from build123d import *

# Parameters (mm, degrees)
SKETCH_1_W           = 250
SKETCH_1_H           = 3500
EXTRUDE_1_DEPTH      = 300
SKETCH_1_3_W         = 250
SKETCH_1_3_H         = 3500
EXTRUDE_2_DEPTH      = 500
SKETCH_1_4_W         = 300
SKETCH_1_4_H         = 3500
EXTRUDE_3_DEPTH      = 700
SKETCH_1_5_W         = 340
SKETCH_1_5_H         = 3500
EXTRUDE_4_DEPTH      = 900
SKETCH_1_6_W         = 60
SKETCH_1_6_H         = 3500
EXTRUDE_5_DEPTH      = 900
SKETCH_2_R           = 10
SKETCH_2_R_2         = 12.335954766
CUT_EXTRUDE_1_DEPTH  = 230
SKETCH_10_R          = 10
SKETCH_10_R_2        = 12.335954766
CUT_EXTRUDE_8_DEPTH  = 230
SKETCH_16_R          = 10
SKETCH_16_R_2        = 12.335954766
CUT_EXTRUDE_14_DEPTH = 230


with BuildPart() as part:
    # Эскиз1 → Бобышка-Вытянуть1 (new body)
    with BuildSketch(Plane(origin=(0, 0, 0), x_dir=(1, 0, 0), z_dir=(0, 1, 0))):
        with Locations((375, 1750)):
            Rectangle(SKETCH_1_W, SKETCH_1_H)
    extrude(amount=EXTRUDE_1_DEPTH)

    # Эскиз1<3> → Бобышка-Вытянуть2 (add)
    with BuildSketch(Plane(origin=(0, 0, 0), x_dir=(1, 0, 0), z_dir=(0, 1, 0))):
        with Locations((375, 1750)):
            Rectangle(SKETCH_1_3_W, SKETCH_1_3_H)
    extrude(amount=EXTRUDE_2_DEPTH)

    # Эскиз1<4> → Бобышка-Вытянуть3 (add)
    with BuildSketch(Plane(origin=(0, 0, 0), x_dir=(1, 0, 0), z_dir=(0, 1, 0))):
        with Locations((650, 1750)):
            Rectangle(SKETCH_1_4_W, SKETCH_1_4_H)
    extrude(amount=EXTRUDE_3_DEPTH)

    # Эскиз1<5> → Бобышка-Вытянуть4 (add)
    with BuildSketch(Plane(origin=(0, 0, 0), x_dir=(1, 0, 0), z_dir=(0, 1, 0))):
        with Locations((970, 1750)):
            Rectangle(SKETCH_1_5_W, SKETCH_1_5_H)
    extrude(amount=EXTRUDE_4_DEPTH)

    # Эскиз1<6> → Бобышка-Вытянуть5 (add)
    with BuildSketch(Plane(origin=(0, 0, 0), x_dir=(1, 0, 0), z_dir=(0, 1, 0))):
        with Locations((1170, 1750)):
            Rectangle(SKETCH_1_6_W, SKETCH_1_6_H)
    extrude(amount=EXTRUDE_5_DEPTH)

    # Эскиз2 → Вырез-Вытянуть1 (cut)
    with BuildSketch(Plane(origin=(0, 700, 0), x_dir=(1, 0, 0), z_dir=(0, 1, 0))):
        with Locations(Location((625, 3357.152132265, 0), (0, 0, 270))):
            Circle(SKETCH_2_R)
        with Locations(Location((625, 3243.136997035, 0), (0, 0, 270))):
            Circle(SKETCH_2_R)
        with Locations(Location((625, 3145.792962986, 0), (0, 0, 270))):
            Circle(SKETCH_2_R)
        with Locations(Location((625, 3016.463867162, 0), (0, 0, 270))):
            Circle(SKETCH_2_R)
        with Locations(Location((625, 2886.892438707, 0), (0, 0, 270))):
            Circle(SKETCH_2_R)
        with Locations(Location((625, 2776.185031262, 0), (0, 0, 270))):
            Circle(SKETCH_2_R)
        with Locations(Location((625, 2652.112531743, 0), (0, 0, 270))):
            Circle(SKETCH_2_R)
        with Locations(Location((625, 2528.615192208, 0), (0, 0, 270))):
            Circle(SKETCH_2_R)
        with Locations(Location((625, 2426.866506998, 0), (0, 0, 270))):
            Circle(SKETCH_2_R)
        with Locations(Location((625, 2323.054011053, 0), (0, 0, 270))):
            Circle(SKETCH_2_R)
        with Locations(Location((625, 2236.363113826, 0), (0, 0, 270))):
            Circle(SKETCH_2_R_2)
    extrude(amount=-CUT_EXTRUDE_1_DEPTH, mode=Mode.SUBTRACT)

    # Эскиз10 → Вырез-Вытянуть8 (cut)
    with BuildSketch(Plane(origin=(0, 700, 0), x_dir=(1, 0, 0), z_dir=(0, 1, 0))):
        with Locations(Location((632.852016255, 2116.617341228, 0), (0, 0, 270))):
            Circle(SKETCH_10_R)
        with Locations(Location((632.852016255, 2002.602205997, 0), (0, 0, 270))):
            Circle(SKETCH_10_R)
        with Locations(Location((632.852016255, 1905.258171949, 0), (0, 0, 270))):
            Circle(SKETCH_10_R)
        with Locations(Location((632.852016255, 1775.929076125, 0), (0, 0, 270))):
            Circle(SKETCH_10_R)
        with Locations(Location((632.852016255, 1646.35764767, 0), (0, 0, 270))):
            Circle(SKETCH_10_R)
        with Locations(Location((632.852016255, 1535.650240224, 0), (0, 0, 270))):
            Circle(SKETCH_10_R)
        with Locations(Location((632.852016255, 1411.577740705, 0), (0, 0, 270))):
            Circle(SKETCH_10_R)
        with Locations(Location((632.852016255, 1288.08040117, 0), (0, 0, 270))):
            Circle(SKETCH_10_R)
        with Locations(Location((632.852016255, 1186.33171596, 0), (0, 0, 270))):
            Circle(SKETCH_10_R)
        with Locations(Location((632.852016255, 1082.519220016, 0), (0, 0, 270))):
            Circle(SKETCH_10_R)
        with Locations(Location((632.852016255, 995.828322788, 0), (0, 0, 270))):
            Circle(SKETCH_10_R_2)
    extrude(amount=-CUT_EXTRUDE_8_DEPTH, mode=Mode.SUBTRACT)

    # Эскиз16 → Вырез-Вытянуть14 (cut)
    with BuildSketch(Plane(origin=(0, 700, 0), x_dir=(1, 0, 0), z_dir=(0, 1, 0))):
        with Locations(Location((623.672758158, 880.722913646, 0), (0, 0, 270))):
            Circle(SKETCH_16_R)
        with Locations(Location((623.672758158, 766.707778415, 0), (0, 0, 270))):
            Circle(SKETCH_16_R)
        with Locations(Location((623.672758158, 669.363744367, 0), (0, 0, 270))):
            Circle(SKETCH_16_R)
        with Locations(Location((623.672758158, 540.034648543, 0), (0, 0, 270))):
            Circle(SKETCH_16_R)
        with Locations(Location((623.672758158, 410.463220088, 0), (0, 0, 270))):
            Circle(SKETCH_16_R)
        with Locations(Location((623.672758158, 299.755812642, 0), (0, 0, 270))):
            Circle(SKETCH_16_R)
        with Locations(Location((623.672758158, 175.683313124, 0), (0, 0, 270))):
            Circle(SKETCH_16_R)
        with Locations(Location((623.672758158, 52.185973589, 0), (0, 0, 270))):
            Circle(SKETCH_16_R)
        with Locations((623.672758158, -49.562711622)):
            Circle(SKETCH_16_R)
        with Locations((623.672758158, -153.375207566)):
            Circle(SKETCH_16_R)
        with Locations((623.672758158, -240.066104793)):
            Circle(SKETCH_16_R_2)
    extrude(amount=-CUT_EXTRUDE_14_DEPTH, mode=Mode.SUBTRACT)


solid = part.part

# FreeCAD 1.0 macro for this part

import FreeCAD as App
import Part
import Sketcher
Q = App.Units.Quantity

doc = App.newDocument("Part")
body = doc.addObject("PartDesign::Body", "Body")

sketch1 = body.newObject("Sketcher::SketchObject", "Sketch")
sketch1.AttachmentSupport = (doc.getObject("XZ_Plane"), [""])
sketch1.MapMode = "FlatFace"
sketch1.addGeometry([
    Part.LineSegment(App.Vector(250, -3500, 0), App.Vector(250, 0, 0)),
    Part.LineSegment(App.Vector(250, 0, 0), App.Vector(500, 0, 0)),
    Part.LineSegment(App.Vector(500, 0, 0), App.Vector(500, -3500, 0)),
    Part.LineSegment(App.Vector(500, -3500, 0), App.Vector(250, -3500, 0)),
], False)
sketch1.addConstraint([
    Sketcher.Constraint("Coincident", 0, 2, 1, 1),
    Sketcher.Constraint("Coincident", 1, 2, 2, 1),
    Sketcher.Constraint("Coincident", 2, 2, 3, 1),
    Sketcher.Constraint("Coincident", 3, 2, 0, 1),
    Sketcher.Constraint("Vertical", 0),
    Sketcher.Constraint("Horizontal", 1),
    Sketcher.Constraint("Vertical", 2),
    Sketcher.Constraint("Horizontal", 3),
    Sketcher.Constraint("PointOnObject", 0, 2, -1),
    Sketcher.Constraint("DistanceX", 1, 1, 1, 2, Q("250 mm")),
    Sketcher.Constraint("DistanceY", 0, 1, 0, 2, Q("3500 mm")),
    Sketcher.Constraint("DistanceX", -1, 1, 0, 2, Q("250 mm")),
])
pad1 = body.newObject("PartDesign::Pad", "Pad")
pad1.Profile = sketch1
pad1.Length = 300
pad1.Reversed = True

sketch2 = body.newObject("Sketcher::SketchObject", "Sketch001")
sketch2.AttachmentSupport = (doc.getObject("XZ_Plane"), [""])
sketch2.MapMode = "FlatFace"
sketch2.addGeometry([
    Part.LineSegment(App.Vector(250, -3500, 0), App.Vector(250, 0, 0)),
    Part.LineSegment(App.Vector(250, 0, 0), App.Vector(500, 0, 0)),
    Part.LineSegment(App.Vector(500, 0, 0), App.Vector(500, -3500, 0)),
    Part.LineSegment(App.Vector(500, -3500, 0), App.Vector(250, -3500, 0)),
], False)
sketch2.addConstraint([
    Sketcher.Constraint("Coincident", 0, 2, 1, 1),
    Sketcher.Constraint("Coincident", 1, 2, 2, 1),
    Sketcher.Constraint("Coincident", 2, 2, 3, 1),
    Sketcher.Constraint("Coincident", 3, 2, 0, 1),
    Sketcher.Constraint("Vertical", 0),
    Sketcher.Constraint("Horizontal", 1),
    Sketcher.Constraint("Vertical", 2),
    Sketcher.Constraint("Horizontal", 3),
    Sketcher.Constraint("PointOnObject", 0, 2, -1),
    Sketcher.Constraint("DistanceX", 1, 1, 1, 2, Q("250 mm")),
    Sketcher.Constraint("DistanceY", 0, 1, 0, 2, Q("3500 mm")),
    Sketcher.Constraint("DistanceX", -1, 1, 0, 2, Q("250 mm")),
])
pad2 = body.newObject("PartDesign::Pad", "Pad001")
pad2.Profile = sketch2
pad2.Length = 500
pad2.Reversed = True

sketch3 = body.newObject("Sketcher::SketchObject", "Sketch002")
sketch3.AttachmentSupport = (doc.getObject("XZ_Plane"), [""])
sketch3.MapMode = "FlatFace"
sketch3.addGeometry([
    Part.LineSegment(App.Vector(500, -3500, 0), App.Vector(500, 0, 0)),
    Part.LineSegment(App.Vector(500, 0, 0), App.Vector(800, 0, 0)),
    Part.LineSegment(App.Vector(800, 0, 0), App.Vector(800, -3500, 0)),
    Part.LineSegment(App.Vector(800, -3500, 0), App.Vector(500, -3500, 0)),
], False)
sketch3.addConstraint([
    Sketcher.Constraint("Coincident", 0, 2, 1, 1),
    Sketcher.Constraint("Coincident", 1, 2, 2, 1),
    Sketcher.Constraint("Coincident", 2, 2, 3, 1),
    Sketcher.Constraint("Coincident", 3, 2, 0, 1),
    Sketcher.Constraint("Vertical", 0),
    Sketcher.Constraint("Horizontal", 1),
    Sketcher.Constraint("Vertical", 2),
    Sketcher.Constraint("Horizontal", 3),
    Sketcher.Constraint("PointOnObject", 0, 2, -1),
    Sketcher.Constraint("DistanceX", 1, 1, 1, 2, Q("300 mm")),
    Sketcher.Constraint("DistanceY", 0, 1, 0, 2, Q("3500 mm")),
    Sketcher.Constraint("DistanceX", -1, 1, 0, 2, Q("500 mm")),
])
pad3 = body.newObject("PartDesign::Pad", "Pad002")
pad3.Profile = sketch3
pad3.Length = 700
pad3.Reversed = True

sketch4 = body.newObject("Sketcher::SketchObject", "Sketch003")
sketch4.AttachmentSupport = (doc.getObject("XZ_Plane"), [""])
sketch4.MapMode = "FlatFace"
sketch4.addGeometry([
    Part.LineSegment(App.Vector(800, -3500, 0), App.Vector(800, 0, 0)),
    Part.LineSegment(App.Vector(800, 0, 0), App.Vector(1140, 0, 0)),
    Part.LineSegment(App.Vector(1140, 0, 0), App.Vector(1140, -3500, 0)),
    Part.LineSegment(App.Vector(1140, -3500, 0), App.Vector(800, -3500, 0)),
], False)
sketch4.addConstraint([
    Sketcher.Constraint("Coincident", 0, 2, 1, 1),
    Sketcher.Constraint("Coincident", 1, 2, 2, 1),
    Sketcher.Constraint("Coincident", 2, 2, 3, 1),
    Sketcher.Constraint("Coincident", 3, 2, 0, 1),
    Sketcher.Constraint("Vertical", 0),
    Sketcher.Constraint("Horizontal", 1),
    Sketcher.Constraint("Vertical", 2),
    Sketcher.Constraint("Horizontal", 3),
    Sketcher.Constraint("PointOnObject", 0, 2, -1),
    Sketcher.Constraint("DistanceX", 1, 1, 1, 2, Q("340 mm")),
    Sketcher.Constraint("DistanceY", 0, 1, 0, 2, Q("3500 mm")),
    Sketcher.Constraint("DistanceX", -1, 1, 0, 2, Q("800 mm")),
])
pad4 = body.newObject("PartDesign::Pad", "Pad003")
pad4.Profile = sketch4
pad4.Length = 900
pad4.Reversed = True

sketch5 = body.newObject("Sketcher::SketchObject", "Sketch004")
sketch5.AttachmentSupport = (doc.getObject("XZ_Plane"), [""])
sketch5.MapMode = "FlatFace"
sketch5.addGeometry([
    Part.LineSegment(App.Vector(1140, -3500, 0), App.Vector(1140, 0, 0)),
    Part.LineSegment(App.Vector(1140, 0, 0), App.Vector(1200, 0, 0)),
    Part.LineSegment(App.Vector(1200, 0, 0), App.Vector(1200, -3500, 0)),
    Part.LineSegment(App.Vector(1200, -3500, 0), App.Vector(1140, -3500, 0)),
], False)
sketch5.addConstraint([
    Sketcher.Constraint("Coincident", 0, 2, 1, 1),
    Sketcher.Constraint("Coincident", 1, 2, 2, 1),
    Sketcher.Constraint("Coincident", 2, 2, 3, 1),
    Sketcher.Constraint("Coincident", 3, 2, 0, 1),
    Sketcher.Constraint("Vertical", 0),
    Sketcher.Constraint("Horizontal", 1),
    Sketcher.Constraint("Vertical", 2),
    Sketcher.Constraint("Horizontal", 3),
    Sketcher.Constraint("PointOnObject", 0, 2, -1),
    Sketcher.Constraint("DistanceX", 1, 1, 1, 2, Q("60 mm")),
    Sketcher.Constraint("DistanceY", 0, 1, 0, 2, Q("3500 mm")),
    Sketcher.Constraint("DistanceX", -1, 1, 0, 2, Q("1140 mm")),
])
pad5 = body.newObject("PartDesign::Pad", "Pad004")
pad5.Profile = sketch5
pad5.Length = 900
pad5.Reversed = True

sketch6 = body.newObject("Sketcher::SketchObject", "Sketch005")
sketch6.AttachmentSupport = (doc.getObject("XZ_Plane"), [""])
sketch6.MapMode = "FlatFace"
sketch6.AttachmentOffset = App.Placement(App.Vector(0, 0, -700), App.Rotation())
sketch6.addGeometry([
    Part.Circle(App.Vector(625, -3357.152132, 0), App.Vector(0, 0, 1), 10),
    Part.Circle(App.Vector(625, -3243.136997, 0), App.Vector(0, 0, 1), 10),
    Part.Circle(App.Vector(625, -3145.792963, 0), App.Vector(0, 0, 1), 10),
    Part.Circle(App.Vector(625, -3016.463867, 0), App.Vector(0, 0, 1), 10),
    Part.Circle(App.Vector(625, -2886.892439, 0), App.Vector(0, 0, 1), 10),
    Part.Circle(App.Vector(625, -2776.185031, 0), App.Vector(0, 0, 1), 10),
    Part.Circle(App.Vector(625, -2652.112532, 0), App.Vector(0, 0, 1), 10),
    Part.Circle(App.Vector(625, -2528.615192, 0), App.Vector(0, 0, 1), 10),
    Part.Circle(App.Vector(625, -2426.866507, 0), App.Vector(0, 0, 1), 10),
    Part.Circle(App.Vector(625, -2323.054011, 0), App.Vector(0, 0, 1), 10),
    Part.Circle(App.Vector(625, -2236.363114, 0), App.Vector(0, 0, 1), 12.335955),
], False)
sketch6.addConstraint([
    Sketcher.Constraint("Equal", 0, 1),
    Sketcher.Constraint("Equal", 1, 2),
    Sketcher.Constraint("Equal", 2, 3),
    Sketcher.Constraint("Equal", 3, 4),
    Sketcher.Constraint("Equal", 4, 5),
    Sketcher.Constraint("Equal", 5, 6),
    Sketcher.Constraint("Equal", 6, 7),
    Sketcher.Constraint("Equal", 7, 8),
    Sketcher.Constraint("Equal", 8, 9),
    Sketcher.Constraint("Vertical", 0, 3, 1, 3),
    Sketcher.Constraint("Vertical", 1, 3, 2, 3),
    Sketcher.Constraint("Vertical", 2, 3, 3, 3),
    Sketcher.Constraint("Vertical", 3, 3, 4, 3),
    Sketcher.Constraint("Vertical", 4, 3, 5, 3),
    Sketcher.Constraint("Vertical", 5, 3, 6, 3),
    Sketcher.Constraint("Vertical", 6, 3, 7, 3),
    Sketcher.Constraint("Vertical", 7, 3, 8, 3),
    Sketcher.Constraint("Vertical", 8, 3, 9, 3),
    Sketcher.Constraint("Vertical", 9, 3, 10, 3),
    Sketcher.Constraint("Diameter", 0, Q("20 mm")),
    Sketcher.Constraint("DistanceX", -1, 1, 0, 3, Q("625 mm")),
    Sketcher.Constraint("Diameter", 10, Q("24.67191 mm")),
    Sketcher.Constraint("DistanceY", 0, 3, 5, 3, Q("580.967101 mm")),
    Sketcher.Constraint("DistanceY", 5, 3, 6, 3, Q("124.0725 mm")),
    Sketcher.Constraint("DistanceY", 4, 3, -1, 1, Q("2886.892439 mm")),
    Sketcher.Constraint("DistanceY", 5, 3, -1, 1, Q("2776.185031 mm")),
    Sketcher.Constraint("DistanceY", 9, 3, -1, 1, Q("2323.054011 mm")),
    Sketcher.Constraint("DistanceY", 0, 3, 2, 3, Q("211.359169 mm")),
    Sketcher.Constraint("DistanceY", 1, 3, 3, 3, Q("226.67313 mm")),
    Sketcher.Constraint("DistanceY", 3, 3, 4, 3, Q("129.571428 mm")),
    Sketcher.Constraint("DistanceY", 6, 3, 7, 3, Q("123.49734 mm")),
    Sketcher.Constraint("DistanceY", 4, 3, 8, 3, Q("460.025932 mm")),
    Sketcher.Constraint("DistanceY", 7, 3, 10, 3, Q("292.252078 mm")),
])
pocket1 = body.newObject("PartDesign::Pocket", "Pocket")
pocket1.Profile = sketch6
pocket1.Length = 230
pocket1.Reversed = True

sketch7 = body.newObject("Sketcher::SketchObject", "Sketch006")
sketch7.AttachmentSupport = (doc.getObject("XZ_Plane"), [""])
sketch7.MapMode = "FlatFace"
sketch7.AttachmentOffset = App.Placement(App.Vector(0, 0, -700), App.Rotation())
sketch7.addGeometry([
    Part.Circle(App.Vector(632.852016, -2116.617341, 0), App.Vector(0, 0, 1), 10),
    Part.Circle(App.Vector(632.852016, -2002.602206, 0), App.Vector(0, 0, 1), 10),
    Part.Circle(App.Vector(632.852016, -1905.258172, 0), App.Vector(0, 0, 1), 10),
    Part.Circle(App.Vector(632.852016, -1775.929076, 0), App.Vector(0, 0, 1), 10),
    Part.Circle(App.Vector(632.852016, -1646.357648, 0), App.Vector(0, 0, 1), 10),
    Part.Circle(App.Vector(632.852016, -1535.65024, 0), App.Vector(0, 0, 1), 10),
    Part.Circle(App.Vector(632.852016, -1411.577741, 0), App.Vector(0, 0, 1), 10),
    Part.Circle(App.Vector(632.852016, -1288.080401, 0), App.Vector(0, 0, 1), 10),
    Part.Circle(App.Vector(632.852016, -1186.331716, 0), App.Vector(0, 0, 1), 10),
    Part.Circle(App.Vector(632.852016, -1082.51922, 0), App.Vector(0, 0, 1), 10),
    Part.Circle(App.Vector(632.852016, -995.828323, 0), App.Vector(0, 0, 1), 12.335955),
], False)
sketch7.addConstraint([
    Sketcher.Constraint("Equal", 0, 1),
    Sketcher.Constraint("Equal", 1, 2),
    Sketcher.Constraint("Equal", 2, 3),
    Sketcher.Constraint("Equal", 3, 4),
    Sketcher.Constraint("Equal", 4, 5),
    Sketcher.Constraint("Equal", 5, 6),
    Sketcher.Constraint("Equal", 6, 7),
    Sketcher.Constraint("Equal", 7, 8),
    Sketcher.Constraint("Equal", 8, 9),
    Sketcher.Constraint("Vertical", 0, 3, 1, 3),
    Sketcher.Constraint("Vertical", 1, 3, 2, 3),
    Sketcher.Constraint("Vertical", 2, 3, 3, 3),
    Sketcher.Constraint("Vertical", 3, 3, 4, 3),
    Sketcher.Constraint("Vertical", 4, 3, 5, 3),
    Sketcher.Constraint("Vertical", 5, 3, 6, 3),
    Sketcher.Constraint("Vertical", 6, 3, 7, 3),
    Sketcher.Constraint("Vertical", 7, 3, 8, 3),
    Sketcher.Constraint("Vertical", 8, 3, 9, 3),
    Sketcher.Constraint("Vertical", 9, 3, 10, 3),
    Sketcher.Constraint("Diameter", 0, Q("20 mm")),
    Sketcher.Constraint("Diameter", 10, Q("24.67191 mm")),
    Sketcher.Constraint("DistanceY", 7, 3, -1, 1, Q("1288.080401 mm")),
    Sketcher.Constraint("DistanceY", 0, 3, 5, 3, Q("580.967101 mm")),
    Sketcher.Constraint("DistanceY", 5, 3, 6, 3, Q("124.0725 mm")),
    Sketcher.Constraint("DistanceY", 0, 3, -1, 1, Q("2116.617341 mm")),
    Sketcher.Constraint("DistanceY", 2, 3, -1, 1, Q("1905.258172 mm")),
    Sketcher.Constraint("DistanceY", 9, 3, -1, 1, Q("1082.51922 mm")),
    Sketcher.Constraint("DistanceY", 1, 3, 3, 3, Q("226.67313 mm")),
    Sketcher.Constraint("DistanceY", 3, 3, 4, 3, Q("129.571428 mm")),
    Sketcher.Constraint("DistanceY", 4, 3, 8, 3, Q("460.025932 mm")),
    Sketcher.Constraint("DistanceY", 7, 3, 10, 3, Q("292.252078 mm")),
    Sketcher.Constraint("DistanceX", -1, 1, 0, 3, Q("632.852016 mm")),
    Sketcher.Constraint("DistanceY", 1, 3, -1, 1, Q("2002.602206 mm")),
])
pocket2 = body.newObject("PartDesign::Pocket", "Pocket001")
pocket2.Profile = sketch7
pocket2.Length = 230
pocket2.Reversed = True

sketch8 = body.newObject("Sketcher::SketchObject", "Sketch007")
sketch8.AttachmentSupport = (doc.getObject("XZ_Plane"), [""])
sketch8.MapMode = "FlatFace"
sketch8.AttachmentOffset = App.Placement(App.Vector(0, 0, -700), App.Rotation())
sketch8.addGeometry([
    Part.Circle(App.Vector(623.672758, -880.722914, 0), App.Vector(0, 0, 1), 10),
    Part.Circle(App.Vector(623.672758, -766.707778, 0), App.Vector(0, 0, 1), 10),
    Part.Circle(App.Vector(623.672758, -669.363744, 0), App.Vector(0, 0, 1), 10),
    Part.Circle(App.Vector(623.672758, -540.034649, 0), App.Vector(0, 0, 1), 10),
    Part.Circle(App.Vector(623.672758, -410.46322, 0), App.Vector(0, 0, 1), 10),
    Part.Circle(App.Vector(623.672758, -299.755813, 0), App.Vector(0, 0, 1), 10),
    Part.Circle(App.Vector(623.672758, -175.683313, 0), App.Vector(0, 0, 1), 10),
    Part.Circle(App.Vector(623.672758, -52.185974, 0), App.Vector(0, 0, 1), 10),
    Part.Circle(App.Vector(623.672758, 49.562712, 0), App.Vector(0, 0, 1), 10),
    Part.Circle(App.Vector(623.672758, 153.375208, 0), App.Vector(0, 0, 1), 10),
    Part.Circle(App.Vector(623.672758, 240.066105, 0), App.Vector(0, 0, 1), 12.335955),
], False)
sketch8.addConstraint([
    Sketcher.Constraint("Equal", 0, 1),
    Sketcher.Constraint("Equal", 1, 2),
    Sketcher.Constraint("Equal", 2, 3),
    Sketcher.Constraint("Equal", 3, 4),
    Sketcher.Constraint("Equal", 4, 5),
    Sketcher.Constraint("Equal", 5, 6),
    Sketcher.Constraint("Equal", 6, 7),
    Sketcher.Constraint("Equal", 7, 8),
    Sketcher.Constraint("Equal", 8, 9),
    Sketcher.Constraint("Vertical", 0, 3, 1, 3),
    Sketcher.Constraint("Vertical", 1, 3, 2, 3),
    Sketcher.Constraint("Vertical", 2, 3, 3, 3),
    Sketcher.Constraint("Vertical", 3, 3, 4, 3),
    Sketcher.Constraint("Vertical", 4, 3, 5, 3),
    Sketcher.Constraint("Vertical", 5, 3, 6, 3),
    Sketcher.Constraint("Vertical", 6, 3, 7, 3),
    Sketcher.Constraint("Vertical", 7, 3, 8, 3),
    Sketcher.Constraint("Vertical", 8, 3, 9, 3),
    Sketcher.Constraint("Vertical", 9, 3, 10, 3),
    Sketcher.Constraint("Diameter", 0, Q("20 mm")),
    Sketcher.Constraint("Diameter", 10, Q("24.67191 mm")),
    Sketcher.Constraint("DistanceY", 0, 3, 5, 3, Q("580.967101 mm")),
    Sketcher.Constraint("DistanceY", 5, 3, 6, 3, Q("124.0725 mm")),
    Sketcher.Constraint("DistanceX", -1, 1, 0, 3, Q("623.672758 mm")),
    Sketcher.Constraint("DistanceY", 1, 3, -1, 1, Q("766.707778 mm")),
    Sketcher.Constraint("DistanceY", 3, 3, -1, 1, Q("540.034649 mm")),
    Sketcher.Constraint("DistanceY", 4, 3, -1, 1, Q("410.46322 mm")),
    Sketcher.Constraint("DistanceY", -1, 1, 8, 3, Q("49.562712 mm")),
    Sketcher.Constraint("DistanceY", 0, 3, 2, 3, Q("211.359169 mm")),
    Sketcher.Constraint("DistanceY", 6, 3, 7, 3, Q("123.49734 mm")),
    Sketcher.Constraint("DistanceY", 7, 3, 9, 3, Q("205.561181 mm")),
    Sketcher.Constraint("DistanceY", 7, 3, 10, 3, Q("292.252078 mm")),
    Sketcher.Constraint("DistanceY", 0, 3, -1, 1, Q("880.722914 mm")),
])
pocket3 = body.newObject("PartDesign::Pocket", "Pocket002")
pocket3.Profile = sketch8
pocket3.Length = 230
pocket3.Reversed = True

doc.recompute()
